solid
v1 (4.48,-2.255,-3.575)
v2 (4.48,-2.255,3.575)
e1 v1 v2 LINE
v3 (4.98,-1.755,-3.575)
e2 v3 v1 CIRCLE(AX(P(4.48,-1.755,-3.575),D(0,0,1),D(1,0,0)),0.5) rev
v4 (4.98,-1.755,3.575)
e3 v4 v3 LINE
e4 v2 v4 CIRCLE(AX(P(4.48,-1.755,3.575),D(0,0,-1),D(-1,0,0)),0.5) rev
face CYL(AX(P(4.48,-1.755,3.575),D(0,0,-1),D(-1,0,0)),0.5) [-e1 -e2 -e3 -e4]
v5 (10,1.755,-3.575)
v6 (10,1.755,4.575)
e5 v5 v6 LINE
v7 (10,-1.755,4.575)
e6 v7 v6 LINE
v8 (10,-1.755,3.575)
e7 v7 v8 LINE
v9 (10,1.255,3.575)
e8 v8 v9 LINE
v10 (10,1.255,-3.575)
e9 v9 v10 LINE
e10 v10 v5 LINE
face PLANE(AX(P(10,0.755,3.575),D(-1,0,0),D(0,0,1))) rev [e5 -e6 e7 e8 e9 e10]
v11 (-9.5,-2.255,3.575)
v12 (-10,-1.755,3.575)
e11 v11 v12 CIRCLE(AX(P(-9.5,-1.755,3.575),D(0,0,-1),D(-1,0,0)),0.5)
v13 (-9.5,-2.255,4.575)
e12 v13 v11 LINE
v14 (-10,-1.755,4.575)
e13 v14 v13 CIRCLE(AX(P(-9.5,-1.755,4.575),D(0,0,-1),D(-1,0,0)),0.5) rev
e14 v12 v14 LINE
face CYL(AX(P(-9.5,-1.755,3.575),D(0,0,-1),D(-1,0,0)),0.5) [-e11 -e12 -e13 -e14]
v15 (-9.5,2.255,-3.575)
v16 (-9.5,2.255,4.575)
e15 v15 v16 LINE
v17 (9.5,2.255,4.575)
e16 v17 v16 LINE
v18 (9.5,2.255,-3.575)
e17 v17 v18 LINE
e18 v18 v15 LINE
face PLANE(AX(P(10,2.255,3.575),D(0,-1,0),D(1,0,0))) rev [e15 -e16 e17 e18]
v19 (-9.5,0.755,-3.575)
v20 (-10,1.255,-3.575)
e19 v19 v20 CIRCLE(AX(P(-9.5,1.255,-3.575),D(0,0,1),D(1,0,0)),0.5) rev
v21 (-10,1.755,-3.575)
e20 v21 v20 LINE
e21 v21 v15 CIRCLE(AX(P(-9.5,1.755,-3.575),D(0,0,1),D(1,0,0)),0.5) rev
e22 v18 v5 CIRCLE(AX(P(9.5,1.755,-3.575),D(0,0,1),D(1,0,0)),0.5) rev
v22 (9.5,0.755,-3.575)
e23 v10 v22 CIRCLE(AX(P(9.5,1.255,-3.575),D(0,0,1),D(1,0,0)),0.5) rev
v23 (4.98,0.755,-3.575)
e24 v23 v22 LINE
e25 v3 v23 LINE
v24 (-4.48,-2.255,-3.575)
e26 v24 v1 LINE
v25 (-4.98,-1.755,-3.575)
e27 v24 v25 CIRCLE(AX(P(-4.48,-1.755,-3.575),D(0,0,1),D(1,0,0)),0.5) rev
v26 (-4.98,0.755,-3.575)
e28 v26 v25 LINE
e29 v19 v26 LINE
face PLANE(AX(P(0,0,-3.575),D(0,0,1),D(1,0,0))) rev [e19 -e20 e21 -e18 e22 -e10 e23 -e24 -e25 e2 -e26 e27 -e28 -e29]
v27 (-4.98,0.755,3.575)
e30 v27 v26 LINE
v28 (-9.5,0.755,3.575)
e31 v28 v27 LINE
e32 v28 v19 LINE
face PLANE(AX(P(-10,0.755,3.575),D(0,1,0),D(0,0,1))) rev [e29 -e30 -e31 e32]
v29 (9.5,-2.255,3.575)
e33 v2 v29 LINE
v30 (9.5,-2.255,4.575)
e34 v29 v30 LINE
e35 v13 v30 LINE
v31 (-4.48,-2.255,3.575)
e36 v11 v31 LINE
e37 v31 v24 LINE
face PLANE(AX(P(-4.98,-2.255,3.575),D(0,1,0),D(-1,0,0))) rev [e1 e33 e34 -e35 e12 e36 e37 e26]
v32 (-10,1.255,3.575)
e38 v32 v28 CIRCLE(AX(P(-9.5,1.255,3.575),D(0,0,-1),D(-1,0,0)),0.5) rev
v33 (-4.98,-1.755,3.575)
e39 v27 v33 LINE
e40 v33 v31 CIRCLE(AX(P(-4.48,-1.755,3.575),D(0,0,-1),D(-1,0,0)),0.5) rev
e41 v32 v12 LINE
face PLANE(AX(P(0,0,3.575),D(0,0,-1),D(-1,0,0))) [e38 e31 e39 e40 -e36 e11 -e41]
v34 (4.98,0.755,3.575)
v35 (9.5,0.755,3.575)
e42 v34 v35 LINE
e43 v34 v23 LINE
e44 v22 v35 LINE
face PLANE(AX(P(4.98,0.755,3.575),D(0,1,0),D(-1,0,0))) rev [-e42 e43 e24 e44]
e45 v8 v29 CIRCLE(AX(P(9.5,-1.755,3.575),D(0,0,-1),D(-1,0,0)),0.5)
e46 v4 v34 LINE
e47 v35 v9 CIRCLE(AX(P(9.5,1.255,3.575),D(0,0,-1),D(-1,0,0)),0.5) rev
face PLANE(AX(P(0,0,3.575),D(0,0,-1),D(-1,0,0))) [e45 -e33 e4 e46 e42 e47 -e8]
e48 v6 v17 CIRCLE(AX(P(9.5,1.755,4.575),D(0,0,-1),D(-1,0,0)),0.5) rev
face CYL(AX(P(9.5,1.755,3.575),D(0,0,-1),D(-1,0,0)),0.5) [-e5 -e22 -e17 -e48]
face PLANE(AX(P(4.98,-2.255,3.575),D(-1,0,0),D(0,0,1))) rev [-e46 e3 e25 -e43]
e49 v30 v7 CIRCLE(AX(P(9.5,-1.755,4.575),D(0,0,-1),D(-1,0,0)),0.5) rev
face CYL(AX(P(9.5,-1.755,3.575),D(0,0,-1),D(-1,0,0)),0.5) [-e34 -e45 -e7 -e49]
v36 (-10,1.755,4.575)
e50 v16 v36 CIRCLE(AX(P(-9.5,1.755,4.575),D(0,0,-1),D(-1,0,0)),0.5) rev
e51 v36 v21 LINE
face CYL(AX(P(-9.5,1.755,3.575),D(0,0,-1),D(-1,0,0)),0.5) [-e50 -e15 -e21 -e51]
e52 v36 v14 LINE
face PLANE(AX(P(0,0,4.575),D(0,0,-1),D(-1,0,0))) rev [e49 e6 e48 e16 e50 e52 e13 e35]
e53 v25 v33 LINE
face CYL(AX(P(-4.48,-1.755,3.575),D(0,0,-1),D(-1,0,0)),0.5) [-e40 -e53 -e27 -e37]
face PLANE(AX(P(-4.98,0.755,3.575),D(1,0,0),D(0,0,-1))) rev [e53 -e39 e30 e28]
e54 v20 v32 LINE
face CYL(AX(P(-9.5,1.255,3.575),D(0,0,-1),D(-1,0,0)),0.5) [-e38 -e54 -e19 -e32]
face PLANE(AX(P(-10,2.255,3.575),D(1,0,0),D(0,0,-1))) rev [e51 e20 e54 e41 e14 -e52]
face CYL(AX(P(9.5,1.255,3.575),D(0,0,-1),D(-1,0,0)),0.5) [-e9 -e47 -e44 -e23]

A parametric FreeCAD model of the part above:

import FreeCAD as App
import Part
import Sketcher
Q = App.Units.Quantity


def edges_at(feature, points):
    """Names of the edges that pass closest to the given points."""
    edges = feature.Shape.Edges
    near = lambda p: min(range(len(edges)), key=lambda i: edges[i].distToShape(Part.Vertex(*p))[0])
    return sorted({f"Edge{near(p) + 1}" for p in points})

doc = App.newDocument("Part")
body = doc.addObject("PartDesign::Body", "Body")

sketch1 = doc.addObject("Sketcher::SketchObject", "Sketch")
body.addObject(sketch1)
sketch1.AttachmentSupport = (doc.XY_Plane, [""])
sketch1.MapMode = "FlatFace"
sketch1.addGeometry([
    Part.LineSegment(App.Vector(-5, -2.3, 0), App.Vector(5, -2.3, 0)),
    Part.LineSegment(App.Vector(5, -2.3, 0), App.Vector(5, 0.8, 0)),
    Part.LineSegment(App.Vector(5, 0.8, 0), App.Vector(10, 0.8, 0)),
    Part.LineSegment(App.Vector(10, 0.8, 0), App.Vector(10, 2.3, 0)),
    Part.LineSegment(App.Vector(10, 2.3, 0), App.Vector(-10, 2.3, 0)),
    Part.LineSegment(App.Vector(-10, 2.3, 0), App.Vector(-10, 0.8, 0)),
    Part.LineSegment(App.Vector(-10, 0.8, 0), App.Vector(-5, 0.8, 0)),
    Part.LineSegment(App.Vector(-5, 0.8, 0), App.Vector(-5, -2.3, 0)),
], False)
sketch1.addConstraint([
    Sketcher.Constraint("Coincident", 0, 2, 1, 1),
    Sketcher.Constraint("Coincident", 1, 2, 2, 1),
    Sketcher.Constraint("Coincident", 2, 2, 3, 1),
    Sketcher.Constraint("Coincident", 3, 2, 4, 1),
    Sketcher.Constraint("Coincident", 4, 2, 5, 1),
    Sketcher.Constraint("Coincident", 5, 2, 6, 1),
    Sketcher.Constraint("Coincident", 6, 2, 7, 1),
    Sketcher.Constraint("Coincident", 7, 2, 0, 1),
    Sketcher.Constraint("Horizontal", 0),
    Sketcher.Constraint("Vertical", 1),
    Sketcher.Constraint("Horizontal", 2),
    Sketcher.Constraint("Vertical", 3),
    Sketcher.Constraint("Horizontal", 4),
    Sketcher.Constraint("Vertical", 5),
    Sketcher.Constraint("Horizontal", 6),
    Sketcher.Constraint("Vertical", 7),
    Sketcher.Constraint("Symmetric", 2, 2, 5, 2, -2),
    Sketcher.Constraint("Equal", 2, 6),
    Sketcher.Constraint("DistanceX", 4, 2, 4, 1, Q("20 mm")),
    Sketcher.Constraint("DistanceY", 3, 1, 3, 2, Q("1.5 mm")),
    Sketcher.Constraint("DistanceX", 0, 1, 0, 2, Q("9.96 mm")),
    Sketcher.Constraint("DistanceY", 1, 1, 1, 2, Q("3.01 mm")),
    Sketcher.Constraint("DistanceY", 0, 2, -1, 1, Q("2.255 mm")),
])
pad1 = doc.addObject("PartDesign::Pad", "Pad")
body.addObject(pad1)
pad1.Profile = sketch1
pad1.Length = 7.15
pad1.Midplane = True

sketch2 = doc.addObject("Sketcher::SketchObject", "Sketch001")
body.addObject(sketch2)
sketch2.AttachmentSupport = (doc.XY_Plane, [""])
sketch2.MapMode = "FlatFace"
sketch2.AttachmentOffset = App.Placement(App.Vector(0, 0, 3.575), App.Rotation())
sketch2.addGeometry([
    Part.LineSegment(App.Vector(-10, 2.3, 0), App.Vector(-10, -2.3, 0)),
    Part.LineSegment(App.Vector(-10, -2.3, 0), App.Vector(10, -2.3, 0)),
    Part.LineSegment(App.Vector(10, -2.3, 0), App.Vector(10, 2.3, 0)),
    Part.LineSegment(App.Vector(10, 2.3, 0), App.Vector(-10, 2.3, 0)),
], False)
sketch2.addConstraint([
    Sketcher.Constraint("Coincident", 0, 2, 1, 1),
    Sketcher.Constraint("Coincident", 1, 2, 2, 1),
    Sketcher.Constraint("Coincident", 2, 2, 3, 1),
    Sketcher.Constraint("Coincident", 3, 2, 0, 1),
    Sketcher.Constraint("Vertical", 0),
    Sketcher.Constraint("Horizontal", 1),
    Sketcher.Constraint("Vertical", 2),
    Sketcher.Constraint("Horizontal", 3),
    Sketcher.Constraint("Symmetric", 0, 2, 2, 2, -1, 1),
    Sketcher.Constraint("DistanceX", 1, 1, 1, 2, Q("20 mm")),
    Sketcher.Constraint("DistanceY", 0, 2, 0, 1, Q("4.51 mm")),
])
pad2 = doc.addObject("PartDesign::Pad", "Pad001")
body.addObject(pad2)
pad2.Profile = sketch2
pad2.Length = 1
doc.recompute()

fillet = doc.addObject("PartDesign::Fillet", "Fillet")
body.addObject(fillet)
fillet.Base = (pad2, edges_at(pad2, [
    (-10, 0.755, 0),
    (-10, 2.255, 0.5),
    (10, 2.255, 0.5),
    (10, 0.755, 0),
    (4.98, -2.255, 0),
    (-4.98, -2.255, 0),
    (10, -2.255, 4.075),
    (-10, -2.255, 4.075),
]))
fillet.Radius = 0.5

doc.recompute()
